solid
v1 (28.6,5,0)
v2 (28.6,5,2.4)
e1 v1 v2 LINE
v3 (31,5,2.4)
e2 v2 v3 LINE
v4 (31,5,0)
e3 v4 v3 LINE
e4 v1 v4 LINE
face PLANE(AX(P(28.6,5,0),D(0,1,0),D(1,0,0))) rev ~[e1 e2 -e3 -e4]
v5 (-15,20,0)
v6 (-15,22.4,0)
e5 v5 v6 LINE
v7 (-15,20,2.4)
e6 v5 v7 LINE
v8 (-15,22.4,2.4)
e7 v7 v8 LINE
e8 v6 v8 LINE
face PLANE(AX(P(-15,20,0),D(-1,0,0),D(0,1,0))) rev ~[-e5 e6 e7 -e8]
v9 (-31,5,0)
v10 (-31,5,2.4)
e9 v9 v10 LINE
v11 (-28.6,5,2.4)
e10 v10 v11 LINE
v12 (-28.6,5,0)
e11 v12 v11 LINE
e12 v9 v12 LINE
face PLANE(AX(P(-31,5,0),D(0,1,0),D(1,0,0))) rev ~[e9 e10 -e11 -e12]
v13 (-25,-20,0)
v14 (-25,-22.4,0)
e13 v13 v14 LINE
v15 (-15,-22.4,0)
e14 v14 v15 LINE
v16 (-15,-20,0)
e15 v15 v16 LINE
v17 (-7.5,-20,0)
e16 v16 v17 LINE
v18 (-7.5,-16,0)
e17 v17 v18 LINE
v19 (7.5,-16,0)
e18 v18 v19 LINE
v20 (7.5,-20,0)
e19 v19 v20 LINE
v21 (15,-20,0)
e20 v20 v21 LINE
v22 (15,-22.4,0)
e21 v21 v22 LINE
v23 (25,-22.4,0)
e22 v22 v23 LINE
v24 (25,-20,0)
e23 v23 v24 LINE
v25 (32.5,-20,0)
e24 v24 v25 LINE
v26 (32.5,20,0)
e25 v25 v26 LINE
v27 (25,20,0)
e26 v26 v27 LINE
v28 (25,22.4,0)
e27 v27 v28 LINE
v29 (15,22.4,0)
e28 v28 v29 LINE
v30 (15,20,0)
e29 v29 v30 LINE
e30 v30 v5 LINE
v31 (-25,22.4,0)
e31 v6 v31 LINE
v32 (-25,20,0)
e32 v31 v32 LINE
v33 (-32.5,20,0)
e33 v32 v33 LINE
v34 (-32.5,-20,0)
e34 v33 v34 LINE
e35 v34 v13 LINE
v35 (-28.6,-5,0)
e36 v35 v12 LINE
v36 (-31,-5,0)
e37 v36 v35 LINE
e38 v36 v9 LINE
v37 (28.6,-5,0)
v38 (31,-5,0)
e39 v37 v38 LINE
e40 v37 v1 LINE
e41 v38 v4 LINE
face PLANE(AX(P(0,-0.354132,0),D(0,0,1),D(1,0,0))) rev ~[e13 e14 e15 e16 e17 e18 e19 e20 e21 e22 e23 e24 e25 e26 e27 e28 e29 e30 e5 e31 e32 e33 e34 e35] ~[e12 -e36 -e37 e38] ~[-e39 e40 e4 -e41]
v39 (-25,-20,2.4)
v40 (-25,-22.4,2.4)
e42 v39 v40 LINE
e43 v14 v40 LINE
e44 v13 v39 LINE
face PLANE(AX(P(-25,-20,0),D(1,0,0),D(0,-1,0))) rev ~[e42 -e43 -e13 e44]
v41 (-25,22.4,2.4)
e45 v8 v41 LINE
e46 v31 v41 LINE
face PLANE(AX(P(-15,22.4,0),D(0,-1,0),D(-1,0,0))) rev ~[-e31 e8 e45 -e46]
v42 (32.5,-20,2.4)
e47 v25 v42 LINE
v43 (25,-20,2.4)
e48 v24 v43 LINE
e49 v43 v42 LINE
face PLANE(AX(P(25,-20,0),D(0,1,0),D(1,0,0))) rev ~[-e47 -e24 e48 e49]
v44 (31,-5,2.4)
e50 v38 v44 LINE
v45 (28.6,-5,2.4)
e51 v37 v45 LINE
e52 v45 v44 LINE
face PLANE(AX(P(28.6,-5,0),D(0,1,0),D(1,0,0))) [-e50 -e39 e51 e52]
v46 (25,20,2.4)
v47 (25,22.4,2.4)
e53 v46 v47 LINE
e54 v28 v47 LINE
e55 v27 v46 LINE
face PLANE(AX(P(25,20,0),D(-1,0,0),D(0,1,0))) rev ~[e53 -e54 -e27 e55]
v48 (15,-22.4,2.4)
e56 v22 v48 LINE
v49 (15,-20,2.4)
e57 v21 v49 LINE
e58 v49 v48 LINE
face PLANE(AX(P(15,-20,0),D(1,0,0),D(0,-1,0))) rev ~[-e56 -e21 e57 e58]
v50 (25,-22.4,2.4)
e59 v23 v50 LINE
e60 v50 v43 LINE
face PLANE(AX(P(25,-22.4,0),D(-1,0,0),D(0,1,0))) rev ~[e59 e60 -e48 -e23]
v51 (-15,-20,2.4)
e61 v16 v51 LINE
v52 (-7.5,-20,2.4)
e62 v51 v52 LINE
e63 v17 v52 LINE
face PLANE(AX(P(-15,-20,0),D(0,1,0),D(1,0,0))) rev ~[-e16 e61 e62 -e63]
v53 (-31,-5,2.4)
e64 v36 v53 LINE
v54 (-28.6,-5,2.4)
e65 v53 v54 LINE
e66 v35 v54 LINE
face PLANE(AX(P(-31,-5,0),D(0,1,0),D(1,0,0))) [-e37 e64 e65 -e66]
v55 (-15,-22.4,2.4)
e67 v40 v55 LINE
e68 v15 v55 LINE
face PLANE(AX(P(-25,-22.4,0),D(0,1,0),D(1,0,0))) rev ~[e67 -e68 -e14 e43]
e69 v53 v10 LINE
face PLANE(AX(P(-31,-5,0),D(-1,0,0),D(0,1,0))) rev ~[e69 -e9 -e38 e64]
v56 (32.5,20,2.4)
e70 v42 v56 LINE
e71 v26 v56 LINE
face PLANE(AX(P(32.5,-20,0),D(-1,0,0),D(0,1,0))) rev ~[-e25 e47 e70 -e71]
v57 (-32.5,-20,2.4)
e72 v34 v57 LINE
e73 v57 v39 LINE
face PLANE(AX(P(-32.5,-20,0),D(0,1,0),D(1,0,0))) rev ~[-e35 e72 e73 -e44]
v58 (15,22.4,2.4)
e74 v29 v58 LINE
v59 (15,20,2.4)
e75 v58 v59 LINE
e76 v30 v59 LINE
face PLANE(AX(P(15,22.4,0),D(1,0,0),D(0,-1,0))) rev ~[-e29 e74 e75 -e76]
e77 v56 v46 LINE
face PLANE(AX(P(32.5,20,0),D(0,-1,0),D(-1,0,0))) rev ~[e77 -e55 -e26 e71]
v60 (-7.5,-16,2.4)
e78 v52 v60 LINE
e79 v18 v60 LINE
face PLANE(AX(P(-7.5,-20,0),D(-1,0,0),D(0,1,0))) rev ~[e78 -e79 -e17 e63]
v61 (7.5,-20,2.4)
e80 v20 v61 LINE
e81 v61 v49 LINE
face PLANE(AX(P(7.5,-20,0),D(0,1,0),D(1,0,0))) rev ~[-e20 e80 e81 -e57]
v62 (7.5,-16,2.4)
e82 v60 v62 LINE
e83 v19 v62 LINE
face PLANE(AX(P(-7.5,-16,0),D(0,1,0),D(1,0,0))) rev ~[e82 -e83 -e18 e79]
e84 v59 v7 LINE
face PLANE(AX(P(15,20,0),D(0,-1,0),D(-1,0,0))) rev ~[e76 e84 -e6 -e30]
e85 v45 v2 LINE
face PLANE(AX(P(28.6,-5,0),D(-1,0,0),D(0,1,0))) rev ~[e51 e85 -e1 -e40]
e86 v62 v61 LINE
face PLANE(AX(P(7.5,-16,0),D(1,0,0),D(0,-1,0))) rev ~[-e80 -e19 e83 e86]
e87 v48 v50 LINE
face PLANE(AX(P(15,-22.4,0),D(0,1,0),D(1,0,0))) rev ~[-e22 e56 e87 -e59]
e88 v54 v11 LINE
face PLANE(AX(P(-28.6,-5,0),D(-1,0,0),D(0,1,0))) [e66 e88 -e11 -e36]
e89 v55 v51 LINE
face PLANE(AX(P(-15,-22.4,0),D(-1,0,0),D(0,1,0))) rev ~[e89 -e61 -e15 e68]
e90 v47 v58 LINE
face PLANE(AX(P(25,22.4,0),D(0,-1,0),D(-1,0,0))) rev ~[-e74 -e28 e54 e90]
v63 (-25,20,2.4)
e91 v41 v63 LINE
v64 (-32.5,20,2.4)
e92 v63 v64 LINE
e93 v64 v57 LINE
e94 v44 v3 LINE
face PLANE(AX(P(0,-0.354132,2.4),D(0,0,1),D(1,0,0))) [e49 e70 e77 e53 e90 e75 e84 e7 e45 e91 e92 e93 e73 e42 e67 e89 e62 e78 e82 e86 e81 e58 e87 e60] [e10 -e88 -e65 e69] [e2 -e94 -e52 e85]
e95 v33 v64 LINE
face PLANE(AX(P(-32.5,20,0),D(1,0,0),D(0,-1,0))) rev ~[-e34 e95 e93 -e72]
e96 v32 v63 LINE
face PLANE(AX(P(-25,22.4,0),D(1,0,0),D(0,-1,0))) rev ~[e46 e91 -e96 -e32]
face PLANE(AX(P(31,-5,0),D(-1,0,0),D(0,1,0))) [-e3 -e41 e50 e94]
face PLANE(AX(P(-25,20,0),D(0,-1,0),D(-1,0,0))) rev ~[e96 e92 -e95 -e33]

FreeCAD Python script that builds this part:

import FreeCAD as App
import Part
import Sketcher
Q = App.Units.Quantity

doc = App.newDocument("Part")
body = doc.addObject("PartDesign::Body", "Body")

# Sketch on XY plane
sketch1 = body.newObject("Sketcher::SketchObject", "Sketch")
sketch1.AttachmentSupport = (doc.getObject("XY_Plane"), [""])
sketch1.MapMode = "FlatFace"
sketch1.addGeometry([
    Part.LineSegment(App.Vector(32.5, -20, 0), App.Vector(32.5, 20, 0)),  # 0
    Part.LineSegment(App.Vector(32.5, 20, 0), App.Vector(25, 20, 0)),  # 1
    Part.LineSegment(App.Vector(25, 20, 0), App.Vector(25, 22.4, 0)),  # 2
    Part.LineSegment(App.Vector(25, 22.4, 0), App.Vector(15, 22.4, 0)),  # 3
    Part.LineSegment(App.Vector(15, 22.4, 0), App.Vector(15, 20, 0)),  # 4
    Part.LineSegment(App.Vector(15, 20, 0), App.Vector(-15, 20, 0)),  # 5
    Part.LineSegment(App.Vector(-15, 20, 0), App.Vector(-15, 22.4, 0)),  # 6
    Part.LineSegment(App.Vector(-15, 22.4, 0), App.Vector(-25, 22.4, 0)),  # 7
    Part.LineSegment(App.Vector(-25, 22.4, 0), App.Vector(-25, 20, 0)),  # 8
    Part.LineSegment(App.Vector(-25, 20, 0), App.Vector(-32.5, 20, 0)),  # 9
    Part.LineSegment(App.Vector(-32.5, 20, 0), App.Vector(-32.5, -20, 0)),  # 10
    Part.LineSegment(App.Vector(-32.5, -20, 0), App.Vector(-25, -20, 0)),  # 11
    Part.LineSegment(App.Vector(-25, -20, 0), App.Vector(-25, -22.4, 0)),  # 12
    Part.LineSegment(App.Vector(-25, -22.4, 0), App.Vector(-15, -22.4, 0)),  # 13
    Part.LineSegment(App.Vector(-15, -22.4, 0), App.Vector(-15, -20, 0)),  # 14
    Part.LineSegment(App.Vector(-15, -20, 0), App.Vector(-7.5, -20, 0)),  # 15
    Part.LineSegment(App.Vector(-7.5, -20, 0), App.Vector(-7.5, -16, 0)),  # 16
    Part.LineSegment(App.Vector(-7.5, -16, 0), App.Vector(7.5, -16, 0)),  # 17
    Part.LineSegment(App.Vector(7.5, -16, 0), App.Vector(7.5, -20, 0)),  # 18
    Part.LineSegment(App.Vector(7.5, -20, 0), App.Vector(15, -20, 0)),  # 19
    Part.LineSegment(App.Vector(15, -20, 0), App.Vector(15, -22.4, 0)),  # 20
    Part.LineSegment(App.Vector(15, -22.4, 0), App.Vector(25, -22.4, 0)),  # 21
    Part.LineSegment(App.Vector(25, -22.4, 0), App.Vector(25, -20, 0)),  # 22
    Part.LineSegment(App.Vector(25, -20, 0), App.Vector(32.5, -20, 0)),  # 23
    Part.LineSegment(App.Vector(-28.6, -5, 0), App.Vector(-31, -5, 0)),  # 24
    Part.LineSegment(App.Vector(-31, -5, 0), App.Vector(-31, 5, 0)),  # 25
    Part.LineSegment(App.Vector(-31, 5, 0), App.Vector(-28.6, 5, 0)),  # 26
    Part.LineSegment(App.Vector(-28.6, 5, 0), App.Vector(-28.6, -5, 0)),  # 27
    Part.LineSegment(App.Vector(31, -5, 0), App.Vector(28.6, -5, 0)),  # 28
    Part.LineSegment(App.Vector(28.6, -5, 0), App.Vector(28.6, 5, 0)),  # 29
    Part.LineSegment(App.Vector(28.6, 5, 0), App.Vector(31, 5, 0)),  # 30
    Part.LineSegment(App.Vector(31, 5, 0), App.Vector(31, -5, 0)),  # 31
], False)
sketch1.addConstraint([
    Sketcher.Constraint("Coincident", 0, 2, 1, 1),
    Sketcher.Constraint("Coincident", 1, 2, 2, 1),
    Sketcher.Constraint("Coincident", 2, 2, 3, 1),
    Sketcher.Constraint("Coincident", 3, 2, 4, 1),
    Sketcher.Constraint("Coincident", 4, 2, 5, 1),
    Sketcher.Constraint("Coincident", 5, 2, 6, 1),
    Sketcher.Constraint("Coincident", 6, 2, 7, 1),
    Sketcher.Constraint("Coincident", 7, 2, 8, 1),
    Sketcher.Constraint("Coincident", 8, 2, 9, 1),
    Sketcher.Constraint("Coincident", 9, 2, 10, 1),
    Sketcher.Constraint("Coincident", 10, 2, 11, 1),
    Sketcher.Constraint("Coincident", 11, 2, 12, 1),
    Sketcher.Constraint("Coincident", 12, 2, 13, 1),
    Sketcher.Constraint("Coincident", 13, 2, 14, 1),
    Sketcher.Constraint("Coincident", 14, 2, 15, 1),
    Sketcher.Constraint("Coincident", 15, 2, 16, 1),
    Sketcher.Constraint("Coincident", 16, 2, 17, 1),
    Sketcher.Constraint("Coincident", 17, 2, 18, 1),
    Sketcher.Constraint("Coincident", 18, 2, 19, 1),
    Sketcher.Constraint("Coincident", 19, 2, 20, 1),
    Sketcher.Constraint("Coincident", 20, 2, 21, 1),
    Sketcher.Constraint("Coincident", 21, 2, 22, 1),
    Sketcher.Constraint("Coincident", 22, 2, 23, 1),
    Sketcher.Constraint("Coincident", 23, 2, 0, 1),
    Sketcher.Constraint("Coincident", 24, 2, 25, 1),
    Sketcher.Constraint("Coincident", 25, 2, 26, 1),
    Sketcher.Constraint("Coincident", 26, 2, 27, 1),
    Sketcher.Constraint("Coincident", 27, 2, 24, 1),
    Sketcher.Constraint("Coincident", 28, 2, 29, 1),
    Sketcher.Constraint("Coincident", 29, 2, 30, 1),
    Sketcher.Constraint("Coincident", 30, 2, 31, 1),
    Sketcher.Constraint("Coincident", 31, 2, 28, 1),
    Sketcher.Constraint("Vertical", 0),
    Sketcher.Constraint("Horizontal", 1),
    Sketcher.Constraint("Vertical", 2),
    Sketcher.Constraint("Horizontal", 3),
    Sketcher.Constraint("Vertical", 4),
    Sketcher.Constraint("Horizontal", 5),
    Sketcher.Constraint("Vertical", 6),
    Sketcher.Constraint("Horizontal", 7),
    Sketcher.Constraint("Vertical", 8),
    Sketcher.Constraint("Horizontal", 9),
    Sketcher.Constraint("Vertical", 10),
    Sketcher.Constraint("Horizontal", 11),
    Sketcher.Constraint("Vertical", 12),
    Sketcher.Constraint("Horizontal", 13),
    Sketcher.Constraint("Vertical", 14),
    Sketcher.Constraint("Horizontal", 15),
    Sketcher.Constraint("Vertical", 16),
    Sketcher.Constraint("Horizontal", 17),
    Sketcher.Constraint("Vertical", 18),
    Sketcher.Constraint("Horizontal", 19),
    Sketcher.Constraint("Vertical", 20),
    Sketcher.Constraint("Horizontal", 21),
    Sketcher.Constraint("Vertical", 22),
    Sketcher.Constraint("Horizontal", 23),
    Sketcher.Constraint("Horizontal", 24),
    Sketcher.Constraint("Vertical", 25),
    Sketcher.Constraint("Horizontal", 26),
    Sketcher.Constraint("Vertical", 27),
    Sketcher.Constraint("Horizontal", 28),
    Sketcher.Constraint("Vertical", 29),
    Sketcher.Constraint("Horizontal", 30),
    Sketcher.Constraint("Vertical", 31),
    Sketcher.Constraint("Symmetric", 0, 2, 10, 2, -1, 1),
    Sketcher.Constraint("Symmetric", 2, 2, 12, 2, -1, 1),
    Sketcher.Constraint("Symmetric", 4, 2, 14, 2, -1, 1),
    Sketcher.Constraint("Symmetric", 5, 2, 19, 2, -1, 1),
    Sketcher.Constraint("Symmetric", 7, 2, 21, 2, -1, 1),
    Sketcher.Constraint("Symmetric", 26, 2, 28, 2, -1, 1),
    Sketcher.Constraint("Symmetric", 24, 2, 30, 2, -1, 1),
    Sketcher.Constraint("Symmetric", 3, 2, 6, 2, -2),
    Sketcher.Constraint("Symmetric", 1, 2, 8, 2, -2),
    Sketcher.Constraint("Horizontal", 1, 2, 4, 2),
    Sketcher.Constraint("Horizontal", 19, 2, 22, 2),
    Sketcher.Constraint("Horizontal", 27, 2, 28, 2),
    Sketcher.Constraint("Equal", 11, 15),
    Sketcher.Constraint("Equal", 15, 19),
    Sketcher.Constraint("Equal", 30, 2),
    Sketcher.Constraint("Equal", 21, 25),
    Sketcher.Constraint("DistanceX", 3, 2, 3, 1, Q("10 mm")),
    Sketcher.Constraint("DistanceX", 5, 2, 5, 1, Q("30 mm")),
    Sketcher.Constraint("DistanceX", 17, 1, 17, 2, Q("15 mm")),
    Sketcher.Constraint("DistanceY", 0, 1, 0, 2, Q("40 mm")),
    Sketcher.Constraint("DistanceY", 16, 1, 16, 2, Q("4 mm")),
    Sketcher.Constraint("DistanceX", 24, 2, 24, 1, Q("2.4 mm")),
    Sketcher.Constraint("DistanceX", 24, 2, -1, 1, Q("31 mm")),
])
pad1 = body.newObject("PartDesign::Pad", "Pad")
pad1.Profile = sketch1
pad1.Length = 2.4

doc.recompute()
